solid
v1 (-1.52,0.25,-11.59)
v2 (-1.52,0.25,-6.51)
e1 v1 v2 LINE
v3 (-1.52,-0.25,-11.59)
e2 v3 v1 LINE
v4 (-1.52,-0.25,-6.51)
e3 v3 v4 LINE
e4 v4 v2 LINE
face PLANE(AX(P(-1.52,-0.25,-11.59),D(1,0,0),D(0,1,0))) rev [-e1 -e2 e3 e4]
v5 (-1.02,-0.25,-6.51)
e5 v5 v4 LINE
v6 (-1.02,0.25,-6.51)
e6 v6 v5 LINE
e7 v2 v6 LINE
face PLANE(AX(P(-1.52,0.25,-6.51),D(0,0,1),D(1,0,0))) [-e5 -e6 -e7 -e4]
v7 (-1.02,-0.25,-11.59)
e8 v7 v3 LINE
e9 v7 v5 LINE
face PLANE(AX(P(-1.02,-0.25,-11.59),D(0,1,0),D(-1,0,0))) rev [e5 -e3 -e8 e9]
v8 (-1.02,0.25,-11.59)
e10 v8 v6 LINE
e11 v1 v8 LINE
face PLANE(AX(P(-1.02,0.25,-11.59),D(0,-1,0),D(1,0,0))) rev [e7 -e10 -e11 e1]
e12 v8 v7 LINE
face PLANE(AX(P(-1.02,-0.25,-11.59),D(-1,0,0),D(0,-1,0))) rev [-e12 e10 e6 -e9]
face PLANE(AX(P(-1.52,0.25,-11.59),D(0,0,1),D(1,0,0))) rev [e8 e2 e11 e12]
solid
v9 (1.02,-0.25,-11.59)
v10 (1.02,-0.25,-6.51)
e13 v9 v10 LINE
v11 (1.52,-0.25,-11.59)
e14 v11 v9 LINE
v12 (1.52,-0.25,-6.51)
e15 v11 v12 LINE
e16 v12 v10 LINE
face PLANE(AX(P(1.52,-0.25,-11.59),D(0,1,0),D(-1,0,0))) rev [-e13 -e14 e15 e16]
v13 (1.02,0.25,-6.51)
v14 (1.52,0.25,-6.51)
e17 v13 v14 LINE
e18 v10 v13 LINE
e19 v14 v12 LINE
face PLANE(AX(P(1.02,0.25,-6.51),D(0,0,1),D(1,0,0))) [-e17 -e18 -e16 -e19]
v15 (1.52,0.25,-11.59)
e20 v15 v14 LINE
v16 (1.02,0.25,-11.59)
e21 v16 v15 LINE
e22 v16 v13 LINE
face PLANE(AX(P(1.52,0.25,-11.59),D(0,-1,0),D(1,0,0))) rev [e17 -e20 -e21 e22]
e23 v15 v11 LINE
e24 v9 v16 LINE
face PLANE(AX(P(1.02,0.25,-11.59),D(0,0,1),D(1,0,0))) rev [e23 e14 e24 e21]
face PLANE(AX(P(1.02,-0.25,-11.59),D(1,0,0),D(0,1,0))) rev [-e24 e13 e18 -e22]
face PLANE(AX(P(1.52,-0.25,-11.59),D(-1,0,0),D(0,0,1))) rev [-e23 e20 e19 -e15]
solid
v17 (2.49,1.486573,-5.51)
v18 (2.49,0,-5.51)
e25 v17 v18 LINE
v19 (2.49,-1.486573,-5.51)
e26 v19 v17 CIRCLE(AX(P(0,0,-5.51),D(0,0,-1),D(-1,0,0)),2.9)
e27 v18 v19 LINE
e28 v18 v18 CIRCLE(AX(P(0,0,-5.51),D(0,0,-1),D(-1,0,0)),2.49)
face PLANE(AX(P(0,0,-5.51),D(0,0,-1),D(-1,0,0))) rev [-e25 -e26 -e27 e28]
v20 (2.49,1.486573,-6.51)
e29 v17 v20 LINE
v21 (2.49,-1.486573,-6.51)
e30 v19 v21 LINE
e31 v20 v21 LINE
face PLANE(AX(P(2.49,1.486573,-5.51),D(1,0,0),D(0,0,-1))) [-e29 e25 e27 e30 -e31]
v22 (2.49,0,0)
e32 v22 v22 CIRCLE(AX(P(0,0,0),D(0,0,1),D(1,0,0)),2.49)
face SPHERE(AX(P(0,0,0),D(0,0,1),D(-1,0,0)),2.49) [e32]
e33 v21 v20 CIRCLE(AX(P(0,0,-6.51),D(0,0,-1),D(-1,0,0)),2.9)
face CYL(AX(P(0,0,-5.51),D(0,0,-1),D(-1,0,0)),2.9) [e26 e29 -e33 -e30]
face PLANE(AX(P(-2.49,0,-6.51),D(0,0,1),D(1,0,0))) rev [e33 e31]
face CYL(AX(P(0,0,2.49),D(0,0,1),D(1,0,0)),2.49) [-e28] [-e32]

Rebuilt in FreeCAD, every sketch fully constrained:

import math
import FreeCAD as App
import Part
import Sketcher


def add_polygon(sketch, points):
    """Adds a closed chain of lines whose ends are joined by coincident constraints."""
    first, n = sketch.GeometryCount, len(points)
    for a, b in zip(points, points[1:] + points[:1]):
        sketch.addGeometry(Part.LineSegment(App.Vector(*a, 0), App.Vector(*b, 0)), False)
    for i in range(n):
        sketch.addConstraint(Sketcher.Constraint("Coincident", first + i, 2, first + (i + 1) % n, 1))

doc = App.newDocument("Part")
body = doc.addObject("PartDesign::Body", "Body")

# Sketch on XZ plane
sketch1 = body.newObject("Sketcher::SketchObject", "Sketch")
sketch1.AttachmentSupport = (doc.getObject("XZ_Plane"), [""])
sketch1.MapMode = "FlatFace"
sketch1.addGeometry([
    Part.LineSegment(App.Vector(-2.5, -6.5, 0), App.Vector(-2.5, 0, 0)),
    Part.ArcOfCircle(Part.Circle(App.Vector(0, 0, 0), App.Vector(0, 0, 1), 2.5), math.radians(90), math.radians(180)),
    Part.LineSegment(App.Vector(0, 2.5, 0), App.Vector(0, -6.5, 0)),
    Part.LineSegment(App.Vector(0, -6.5, 0), App.Vector(-2.5, -6.5, 0)),
], False)
sketch1.addConstraint([
    Sketcher.Constraint("Tangent", 0, 2, 1, 2),
    Sketcher.Constraint("Coincident", 1, 1, 2, 1),
    Sketcher.Constraint("Coincident", 2, 2, 3, 1),
    Sketcher.Constraint("Coincident", 3, 2, 0, 1),
    Sketcher.Constraint("Vertical", 0),
    Sketcher.Constraint("Vertical", 2),
    Sketcher.Constraint("Horizontal", 3),
    Sketcher.Constraint("Coincident", 1, 3, -1, 1),
    Sketcher.Constraint("PointOnObject", 1, 1, -2),
    Sketcher.Constraint("DistanceY", 2, 2, 2, 1, 9.0),
    Sketcher.Constraint("Radius", 1, 2.49),
])
revolution = body.newObject("PartDesign::Revolution", "Revolution")
revolution.Profile = sketch1
revolution.ReferenceAxis = (sketch1, ["V_Axis"])
revolution.Angle = 360

# Sketch on XY plane
sketch2 = body.newObject("Sketcher::SketchObject", "Sketch001")
sketch2.AttachmentSupport = (doc.getObject("XY_Plane"), [""])
sketch2.MapMode = "FlatFace"
sketch2.AttachmentOffset = App.Placement(App.Vector(0, 0, -6.51), App.Rotation())
sketch2.addGeometry([
    Part.LineSegment(App.Vector(2.5, 1.5, 0), App.Vector(2.5, -1.5, 0)),
    Part.ArcOfCircle(Part.Circle(App.Vector(0, 0, 0), App.Vector(0, 0, 1), 2.9), math.radians(31), math.radians(329)),
], False)
sketch2.addConstraint([
    Sketcher.Constraint("Coincident", 0, 1, 1, 1),
    Sketcher.Constraint("Coincident", 1, 2, 0, 2),
    Sketcher.Constraint("Vertical", 0),
    Sketcher.Constraint("Coincident", 1, 3, -1, 1),
    Sketcher.Constraint("Radius", 1, 2.9),
    Sketcher.Constraint("DistanceX", -1, 1, 0, 1, 2.49),
])
pad1 = body.newObject("PartDesign::Pad", "Pad")
pad1.Profile = sketch2
pad1.Length = 1
body2 = doc.addObject("PartDesign::Body", "Body001")

# Sketch on XY plane
sketch3 = body2.newObject("Sketcher::SketchObject", "Sketch002")
sketch3.AttachmentSupport = (doc.getObject("XY_Plane001"), [""])
sketch3.MapMode = "FlatFace"
sketch3.AttachmentOffset = App.Placement(App.Vector(0, 0, -6.51), App.Rotation())
add_polygon(sketch3, [(1.5, 0.2), (1.5, -0.2), (1, -0.2), (1, 0.2)])  # lines 0-3
sketch3.addConstraint([
    Sketcher.Constraint("Vertical", 0),
    Sketcher.Constraint("Horizontal", 1),
    Sketcher.Constraint("Vertical", 2),
    Sketcher.Constraint("Horizontal", 3),
    Sketcher.Constraint("Equal", 3, 0),
    Sketcher.Constraint("DistanceX", 1, 2, 1, 1, 0.5),
    Sketcher.Constraint("DistanceX", -1, 1, 0, 2, 1.52),
    Sketcher.Constraint("DistanceY", 0, 2, -1, 1, 0.25),
])
pad2 = body2.newObject("PartDesign::Pad", "Pad001")
pad2.Profile = sketch3
pad2.Length = 5.08
pad2.Reversed = True
body3 = doc.addObject("PartDesign::Body", "Body002")

# Sketch on XY plane
sketch4 = body3.newObject("Sketcher::SketchObject", "Sketch003")
sketch4.AttachmentSupport = (doc.getObject("XY_Plane002"), [""])
sketch4.MapMode = "FlatFace"
sketch4.AttachmentOffset = App.Placement(App.Vector(0, 0, -6.51), App.Rotation())
add_polygon(sketch4, [(-1, 0.2), (-1, -0.2), (-1.5, -0.2), (-1.5, 0.2)])  # lines 0-3
sketch4.addConstraint([
    Sketcher.Constraint("Vertical", 0),
    Sketcher.Constraint("Horizontal", 1),
    Sketcher.Constraint("Vertical", 2),
    Sketcher.Constraint("Horizontal", 3),
    Sketcher.Constraint("Equal", 3, 0),
    Sketcher.Constraint("DistanceX", 1, 2, 1, 1, 0.5),
    Sketcher.Constraint("DistanceX", 0, 2, -1, 1, 1.02),
    Sketcher.Constraint("DistanceY", 0, 2, -1, 1, 0.25),
])
pad3 = body3.newObject("PartDesign::Pad", "Pad002")
pad3.Profile = sketch4
pad3.Length = 5.08
pad3.Reversed = True

doc.recompute()
